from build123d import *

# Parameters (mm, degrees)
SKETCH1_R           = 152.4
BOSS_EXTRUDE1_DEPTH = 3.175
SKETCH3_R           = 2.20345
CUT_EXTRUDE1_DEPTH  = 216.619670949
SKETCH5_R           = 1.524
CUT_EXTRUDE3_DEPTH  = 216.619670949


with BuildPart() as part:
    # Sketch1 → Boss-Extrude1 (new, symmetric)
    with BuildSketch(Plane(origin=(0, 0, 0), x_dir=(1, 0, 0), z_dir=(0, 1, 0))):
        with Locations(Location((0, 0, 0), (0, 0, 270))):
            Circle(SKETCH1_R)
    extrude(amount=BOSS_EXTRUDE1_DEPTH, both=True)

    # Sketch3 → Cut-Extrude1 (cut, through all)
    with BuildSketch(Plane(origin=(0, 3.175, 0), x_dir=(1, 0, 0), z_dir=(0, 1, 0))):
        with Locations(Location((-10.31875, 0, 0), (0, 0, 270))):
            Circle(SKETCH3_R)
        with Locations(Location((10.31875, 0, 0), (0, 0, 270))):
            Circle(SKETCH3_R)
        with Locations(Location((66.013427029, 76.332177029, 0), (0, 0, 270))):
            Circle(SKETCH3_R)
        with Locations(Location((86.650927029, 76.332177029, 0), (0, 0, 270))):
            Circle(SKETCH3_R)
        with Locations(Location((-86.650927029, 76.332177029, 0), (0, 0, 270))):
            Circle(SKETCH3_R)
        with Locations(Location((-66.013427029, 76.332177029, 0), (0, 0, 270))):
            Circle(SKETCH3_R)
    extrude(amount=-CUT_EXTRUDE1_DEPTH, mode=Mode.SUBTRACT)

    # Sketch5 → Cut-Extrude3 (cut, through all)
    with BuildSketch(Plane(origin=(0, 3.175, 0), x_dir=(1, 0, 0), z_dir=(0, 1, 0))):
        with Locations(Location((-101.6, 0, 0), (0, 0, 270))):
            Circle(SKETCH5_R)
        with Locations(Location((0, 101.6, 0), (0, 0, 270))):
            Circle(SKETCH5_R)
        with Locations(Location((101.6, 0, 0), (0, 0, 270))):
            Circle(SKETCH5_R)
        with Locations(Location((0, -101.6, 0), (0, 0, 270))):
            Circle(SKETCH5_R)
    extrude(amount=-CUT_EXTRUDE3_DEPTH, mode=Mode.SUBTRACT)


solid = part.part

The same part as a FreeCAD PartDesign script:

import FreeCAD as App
import Part
import Sketcher

V = App.Vector
Q = App.Units.Quantity

doc = App.newDocument("Part")
params = doc.addObject("Spreadsheet::Sheet", "Params")
for row, (alias, value) in enumerate([
    ("sketch1_diameter", "12 in"),
    ("pad1_length", "0.25 in"),
    ("sketch3_diameter", "0.12 in"),
], start=1):
    params.set(f"A{row}", alias)
    params.set(f"B{row}", "=" + value)
    params.setAlias(f"B{row}", alias)

body = doc.addObject("PartDesign::Body", "Body")

sketch1 = body.newObject("Sketcher::SketchObject", "Sketch")
sketch1.AttachmentSupport = (doc.getObject("XZ_Plane"), [""])
sketch1.MapMode = "FlatFace"
sketch1.addGeometry(Part.Circle(V(0, 0, 0), V(0, 0, 1), 152), False)
sketch1.addConstraint([
    Sketcher.Constraint("Coincident", 0, 3, -1, 1),
    Sketcher.Constraint("Diameter", 0, Q("12 in")),
])
sketch1.setExpression("Constraints[1]", "Params.sketch1_diameter")
pad1 = body.newObject("PartDesign::Pad", "Pad")
pad1.Profile = sketch1
pad1.setExpression("Length", "Params.pad1_length")
pad1.Midplane = True

sketch2 = body.newObject("Sketcher::SketchObject", "Sketch001")
sketch2.AttachmentSupport = (doc.getObject("XZ_Plane"), [""])
sketch2.MapMode = "FlatFace"
sketch2.AttachmentOffset = App.Placement(V(0, 0, -0.125 * 25.4), App.Rotation())
sketch2.addGeometry([
    Part.Circle(V(-10.3, 0, 0), V(0, 0, 1), 2.2),
    Part.Circle(V(10.3, 0, 0), V(0, 0, 1), 2.2),
    Part.Circle(V(66, -76.3, 0), V(0, 0, 1), 2.2),
    Part.Circle(V(86.7, -76.3, 0), V(0, 0, 1), 2.2),
    Part.Circle(V(-86.7, -76.3, 0), V(0, 0, 1), 2.2),
    Part.Circle(V(-66, -76.3, 0), V(0, 0, 1), 2.2),
], False)
sketch2.addConstraint([
    Sketcher.Constraint("Equal", 0, 1),
    Sketcher.Constraint("Equal", 1, 2),
    Sketcher.Constraint("Equal", 2, 3),
    Sketcher.Constraint("Equal", 3, 4),
    Sketcher.Constraint("Equal", 4, 5),
    Sketcher.Constraint("Symmetric", 0, 3, 1, 3, -1, 1),
    Sketcher.Constraint("Symmetric", 3, 3, 4, 3, -2),
    Sketcher.Constraint("Symmetric", 2, 3, 5, 3, -2),
    Sketcher.Constraint("PointOnObject", 0, 3, -1),
    Sketcher.Constraint("Horizontal", 2, 3, 3, 3),
    Sketcher.Constraint("Diameter", 0, Q("0.1735 in")),
    Sketcher.Constraint("DistanceX", 0, 3, -1, 1, Q("0.40625 in")),
    Sketcher.Constraint("DistanceX", 2, 3, 3, 3, Q("0.8125 in")),
    Sketcher.Constraint("DistanceX", -1, 1, 2, 3, 66.013427),
    Sketcher.Constraint("DistanceY", 2, 3, -1, 1, 76.332177),
])
pocket1 = body.newObject("PartDesign::Pocket", "Pocket")
pocket1.Profile = sketch2
pocket1.Type = "ThroughAll"
pocket1.Reversed = True

sketch3 = body.newObject("Sketcher::SketchObject", "Sketch002")
sketch3.AttachmentSupport = (doc.getObject("XZ_Plane"), [""])
sketch3.MapMode = "FlatFace"
sketch3.AttachmentOffset = App.Placement(V(0, 0, -0.125 * 25.4), App.Rotation())
sketch3.addGeometry([
    Part.Circle(V(-101.6, 0, 0), V(0, 0, 1), 1.5),
    Part.Circle(V(0, -101.6, 0), V(0, 0, 1), 1.5),
    Part.Circle(V(101.6, 0, 0), V(0, 0, 1), 1.5),
    Part.Circle(V(0, 101.6, 0), V(0, 0, 1), 1.5),
], False)
sketch3.addConstraint([
    Sketcher.Constraint("Equal", 0, 1),
    Sketcher.Constraint("Equal", 1, 2),
    Sketcher.Constraint("Equal", 2, 3),
    Sketcher.Constraint("Symmetric", 0, 3, 2, 3, -1, 1),
    Sketcher.Constraint("Symmetric", 1, 3, 3, 3, -1, 1),
    Sketcher.Constraint("PointOnObject", 0, 3, -1),
    Sketcher.Constraint("PointOnObject", 1, 3, -2),
    Sketcher.Constraint("Diameter", 0, Q("0.12 in")),
    Sketcher.Constraint("DistanceX", 0, 3, -1, 1, Q("4 in")),
    Sketcher.Constraint("DistanceY", 1, 3, -1, 1, Q("4 in")),
])
sketch3.setExpression("Constraints[7]", "Params.sketch3_diameter")
pocket2 = body.newObject("PartDesign::Pocket", "Pocket001")
pocket2.Profile = sketch3
pocket2.Type = "ThroughAll"
pocket2.Reversed = True

doc.recompute()
